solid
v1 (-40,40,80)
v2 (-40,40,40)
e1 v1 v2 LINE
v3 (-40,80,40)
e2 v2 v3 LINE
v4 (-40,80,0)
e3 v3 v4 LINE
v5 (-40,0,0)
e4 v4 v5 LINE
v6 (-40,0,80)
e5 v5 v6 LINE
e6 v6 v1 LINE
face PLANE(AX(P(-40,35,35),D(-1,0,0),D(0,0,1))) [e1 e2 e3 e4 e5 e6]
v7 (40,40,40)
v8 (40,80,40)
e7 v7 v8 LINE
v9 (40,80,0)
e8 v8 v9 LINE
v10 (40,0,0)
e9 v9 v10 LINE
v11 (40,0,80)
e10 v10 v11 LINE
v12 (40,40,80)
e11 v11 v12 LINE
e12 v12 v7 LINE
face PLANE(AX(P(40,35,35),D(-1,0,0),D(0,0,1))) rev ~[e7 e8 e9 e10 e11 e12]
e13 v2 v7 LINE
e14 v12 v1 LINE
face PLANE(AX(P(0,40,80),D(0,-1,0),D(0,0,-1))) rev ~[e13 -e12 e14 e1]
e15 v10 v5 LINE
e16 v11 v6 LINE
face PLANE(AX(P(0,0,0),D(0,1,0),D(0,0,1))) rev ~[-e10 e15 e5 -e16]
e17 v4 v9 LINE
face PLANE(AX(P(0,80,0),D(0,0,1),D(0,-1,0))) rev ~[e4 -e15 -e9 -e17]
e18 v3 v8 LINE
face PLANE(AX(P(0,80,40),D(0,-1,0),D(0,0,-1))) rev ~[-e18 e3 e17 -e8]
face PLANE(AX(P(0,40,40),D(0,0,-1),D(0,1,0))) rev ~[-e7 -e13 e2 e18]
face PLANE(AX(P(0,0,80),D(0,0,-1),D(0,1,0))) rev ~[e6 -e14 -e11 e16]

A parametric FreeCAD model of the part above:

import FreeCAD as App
import Part
import Sketcher
from FreeCAD import Vector
Q = App.Units.Quantity

doc = App.newDocument("Part")
params = doc.addObject("Spreadsheet::Sheet", "Params")
for row, (alias, value) in enumerate([
    ("sketch1_width", "80 mm"),
    ("pad1_length", "80 mm"),
], start=1):
    params.set(f"A{row}", alias)
    params.set(f"B{row}", "=" + value)
    params.setAlias(f"B{row}", alias)

body = doc.addObject("PartDesign::Body", "Body")

# Sketch on YZ plane
sketch1 = doc.addObject("Sketcher::SketchObject", "Sketch")
body.addObject(sketch1)
sketch1.AttachmentSupport = (doc.YZ_Plane, [""])
sketch1.MapMode = "FlatFace"
sketch1.addGeometry([
    Part.LineSegment(Vector(0, 0, 0), Vector(80, 0, 0)),  # 0
    Part.LineSegment(Vector(80, 0, 0), Vector(80, 40, 0)),  # 1
    Part.LineSegment(Vector(80, 40, 0), Vector(40, 40, 0)),  # 2
    Part.LineSegment(Vector(40, 40, 0), Vector(40, 80, 0)),  # 3
    Part.LineSegment(Vector(40, 80, 0), Vector(0, 80, 0)),  # 4
    Part.LineSegment(Vector(0, 80, 0), Vector(0, 0, 0)),  # 5
], False)
sketch1.addConstraint([
    Sketcher.Constraint("Coincident", 0, 2, 1, 1),
    Sketcher.Constraint("Coincident", 1, 2, 2, 1),
    Sketcher.Constraint("Coincident", 2, 2, 3, 1),
    Sketcher.Constraint("Coincident", 3, 2, 4, 1),
    Sketcher.Constraint("Coincident", 4, 2, 5, 1),
    Sketcher.Constraint("Coincident", 5, 2, 0, 1),
    Sketcher.Constraint("Horizontal", 0),
    Sketcher.Constraint("Vertical", 1),
    Sketcher.Constraint("Horizontal", 2),
    Sketcher.Constraint("Vertical", 3),
    Sketcher.Constraint("Horizontal", 4),
    Sketcher.Constraint("Vertical", 5),
    Sketcher.Constraint("Coincident", 5, 2, -1, 1),
    Sketcher.Constraint("Equal", 2, 4),
    Sketcher.Constraint("Equal", 4, 1),
    Sketcher.Constraint("Equal", 1, 3),
    Sketcher.Constraint("DistanceX", 0, 1, 0, 2, Q("80 mm")),
])
sketch1.setExpression("Constraints[16]", "Params.sketch1_width")
pad1 = doc.addObject("PartDesign::Pad", "Pad")
body.addObject(pad1)
pad1.Profile = sketch1
pad1.setExpression("Length", "Params.pad1_length")
pad1.Midplane = True

doc.recompute()
